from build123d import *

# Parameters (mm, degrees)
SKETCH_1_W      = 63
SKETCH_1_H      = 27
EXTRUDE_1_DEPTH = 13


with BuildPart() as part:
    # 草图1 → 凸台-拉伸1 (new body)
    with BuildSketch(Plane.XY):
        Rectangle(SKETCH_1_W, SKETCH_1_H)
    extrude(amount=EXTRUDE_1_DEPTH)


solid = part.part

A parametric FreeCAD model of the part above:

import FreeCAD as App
import Part
import Sketcher

doc = App.newDocument("Part")
body = doc.addObject("PartDesign::Body", "Body")

sketch1 = body.newObject("Sketcher::SketchObject", "Sketch")
sketch1.AttachmentSupport = (doc.getObject("XY_Plane"), [""])
sketch1.MapMode = "FlatFace"
sketch1.addGeometry(Part.LineSegment(App.Vector(-32, 14, 0), App.Vector(-32, -14, 0)), False)
sketch1.addGeometry(Part.LineSegment(App.Vector(-32, -14, 0), App.Vector(32, -14, 0)), False)
sketch1.addGeometry(Part.LineSegment(App.Vector(32, -14, 0), App.Vector(32, 14, 0)), False)
sketch1.addGeometry(Part.LineSegment(App.Vector(32, 14, 0), App.Vector(-32, 14, 0)), False)
sketch1.addConstraint(Sketcher.Constraint("Coincident", 0, 2, 1, 1))
sketch1.addConstraint(Sketcher.Constraint("Coincident", 1, 2, 2, 1))
sketch1.addConstraint(Sketcher.Constraint("Coincident", 2, 2, 3, 1))
sketch1.addConstraint(Sketcher.Constraint("Coincident", 3, 2, 0, 1))
sketch1.addConstraint(Sketcher.Constraint("Vertical", 0))
sketch1.addConstraint(Sketcher.Constraint("Horizontal", 1))
sketch1.addConstraint(Sketcher.Constraint("Vertical", 2))
sketch1.addConstraint(Sketcher.Constraint("Horizontal", 3))
sketch1.addConstraint(Sketcher.Constraint("Symmetric", 0, 2, 2, 2, -1, 1))
sketch1.addConstraint(Sketcher.Constraint("DistanceX", 1, 1, 1, 2, 63.0))
sketch1.addConstraint(Sketcher.Constraint("DistanceY", 0, 2, 0, 1, 27.0))
pad1 = body.newObject("PartDesign::Pad", "Pad")
pad1.Profile = sketch1
pad1.Length = 13

doc.recompute()
